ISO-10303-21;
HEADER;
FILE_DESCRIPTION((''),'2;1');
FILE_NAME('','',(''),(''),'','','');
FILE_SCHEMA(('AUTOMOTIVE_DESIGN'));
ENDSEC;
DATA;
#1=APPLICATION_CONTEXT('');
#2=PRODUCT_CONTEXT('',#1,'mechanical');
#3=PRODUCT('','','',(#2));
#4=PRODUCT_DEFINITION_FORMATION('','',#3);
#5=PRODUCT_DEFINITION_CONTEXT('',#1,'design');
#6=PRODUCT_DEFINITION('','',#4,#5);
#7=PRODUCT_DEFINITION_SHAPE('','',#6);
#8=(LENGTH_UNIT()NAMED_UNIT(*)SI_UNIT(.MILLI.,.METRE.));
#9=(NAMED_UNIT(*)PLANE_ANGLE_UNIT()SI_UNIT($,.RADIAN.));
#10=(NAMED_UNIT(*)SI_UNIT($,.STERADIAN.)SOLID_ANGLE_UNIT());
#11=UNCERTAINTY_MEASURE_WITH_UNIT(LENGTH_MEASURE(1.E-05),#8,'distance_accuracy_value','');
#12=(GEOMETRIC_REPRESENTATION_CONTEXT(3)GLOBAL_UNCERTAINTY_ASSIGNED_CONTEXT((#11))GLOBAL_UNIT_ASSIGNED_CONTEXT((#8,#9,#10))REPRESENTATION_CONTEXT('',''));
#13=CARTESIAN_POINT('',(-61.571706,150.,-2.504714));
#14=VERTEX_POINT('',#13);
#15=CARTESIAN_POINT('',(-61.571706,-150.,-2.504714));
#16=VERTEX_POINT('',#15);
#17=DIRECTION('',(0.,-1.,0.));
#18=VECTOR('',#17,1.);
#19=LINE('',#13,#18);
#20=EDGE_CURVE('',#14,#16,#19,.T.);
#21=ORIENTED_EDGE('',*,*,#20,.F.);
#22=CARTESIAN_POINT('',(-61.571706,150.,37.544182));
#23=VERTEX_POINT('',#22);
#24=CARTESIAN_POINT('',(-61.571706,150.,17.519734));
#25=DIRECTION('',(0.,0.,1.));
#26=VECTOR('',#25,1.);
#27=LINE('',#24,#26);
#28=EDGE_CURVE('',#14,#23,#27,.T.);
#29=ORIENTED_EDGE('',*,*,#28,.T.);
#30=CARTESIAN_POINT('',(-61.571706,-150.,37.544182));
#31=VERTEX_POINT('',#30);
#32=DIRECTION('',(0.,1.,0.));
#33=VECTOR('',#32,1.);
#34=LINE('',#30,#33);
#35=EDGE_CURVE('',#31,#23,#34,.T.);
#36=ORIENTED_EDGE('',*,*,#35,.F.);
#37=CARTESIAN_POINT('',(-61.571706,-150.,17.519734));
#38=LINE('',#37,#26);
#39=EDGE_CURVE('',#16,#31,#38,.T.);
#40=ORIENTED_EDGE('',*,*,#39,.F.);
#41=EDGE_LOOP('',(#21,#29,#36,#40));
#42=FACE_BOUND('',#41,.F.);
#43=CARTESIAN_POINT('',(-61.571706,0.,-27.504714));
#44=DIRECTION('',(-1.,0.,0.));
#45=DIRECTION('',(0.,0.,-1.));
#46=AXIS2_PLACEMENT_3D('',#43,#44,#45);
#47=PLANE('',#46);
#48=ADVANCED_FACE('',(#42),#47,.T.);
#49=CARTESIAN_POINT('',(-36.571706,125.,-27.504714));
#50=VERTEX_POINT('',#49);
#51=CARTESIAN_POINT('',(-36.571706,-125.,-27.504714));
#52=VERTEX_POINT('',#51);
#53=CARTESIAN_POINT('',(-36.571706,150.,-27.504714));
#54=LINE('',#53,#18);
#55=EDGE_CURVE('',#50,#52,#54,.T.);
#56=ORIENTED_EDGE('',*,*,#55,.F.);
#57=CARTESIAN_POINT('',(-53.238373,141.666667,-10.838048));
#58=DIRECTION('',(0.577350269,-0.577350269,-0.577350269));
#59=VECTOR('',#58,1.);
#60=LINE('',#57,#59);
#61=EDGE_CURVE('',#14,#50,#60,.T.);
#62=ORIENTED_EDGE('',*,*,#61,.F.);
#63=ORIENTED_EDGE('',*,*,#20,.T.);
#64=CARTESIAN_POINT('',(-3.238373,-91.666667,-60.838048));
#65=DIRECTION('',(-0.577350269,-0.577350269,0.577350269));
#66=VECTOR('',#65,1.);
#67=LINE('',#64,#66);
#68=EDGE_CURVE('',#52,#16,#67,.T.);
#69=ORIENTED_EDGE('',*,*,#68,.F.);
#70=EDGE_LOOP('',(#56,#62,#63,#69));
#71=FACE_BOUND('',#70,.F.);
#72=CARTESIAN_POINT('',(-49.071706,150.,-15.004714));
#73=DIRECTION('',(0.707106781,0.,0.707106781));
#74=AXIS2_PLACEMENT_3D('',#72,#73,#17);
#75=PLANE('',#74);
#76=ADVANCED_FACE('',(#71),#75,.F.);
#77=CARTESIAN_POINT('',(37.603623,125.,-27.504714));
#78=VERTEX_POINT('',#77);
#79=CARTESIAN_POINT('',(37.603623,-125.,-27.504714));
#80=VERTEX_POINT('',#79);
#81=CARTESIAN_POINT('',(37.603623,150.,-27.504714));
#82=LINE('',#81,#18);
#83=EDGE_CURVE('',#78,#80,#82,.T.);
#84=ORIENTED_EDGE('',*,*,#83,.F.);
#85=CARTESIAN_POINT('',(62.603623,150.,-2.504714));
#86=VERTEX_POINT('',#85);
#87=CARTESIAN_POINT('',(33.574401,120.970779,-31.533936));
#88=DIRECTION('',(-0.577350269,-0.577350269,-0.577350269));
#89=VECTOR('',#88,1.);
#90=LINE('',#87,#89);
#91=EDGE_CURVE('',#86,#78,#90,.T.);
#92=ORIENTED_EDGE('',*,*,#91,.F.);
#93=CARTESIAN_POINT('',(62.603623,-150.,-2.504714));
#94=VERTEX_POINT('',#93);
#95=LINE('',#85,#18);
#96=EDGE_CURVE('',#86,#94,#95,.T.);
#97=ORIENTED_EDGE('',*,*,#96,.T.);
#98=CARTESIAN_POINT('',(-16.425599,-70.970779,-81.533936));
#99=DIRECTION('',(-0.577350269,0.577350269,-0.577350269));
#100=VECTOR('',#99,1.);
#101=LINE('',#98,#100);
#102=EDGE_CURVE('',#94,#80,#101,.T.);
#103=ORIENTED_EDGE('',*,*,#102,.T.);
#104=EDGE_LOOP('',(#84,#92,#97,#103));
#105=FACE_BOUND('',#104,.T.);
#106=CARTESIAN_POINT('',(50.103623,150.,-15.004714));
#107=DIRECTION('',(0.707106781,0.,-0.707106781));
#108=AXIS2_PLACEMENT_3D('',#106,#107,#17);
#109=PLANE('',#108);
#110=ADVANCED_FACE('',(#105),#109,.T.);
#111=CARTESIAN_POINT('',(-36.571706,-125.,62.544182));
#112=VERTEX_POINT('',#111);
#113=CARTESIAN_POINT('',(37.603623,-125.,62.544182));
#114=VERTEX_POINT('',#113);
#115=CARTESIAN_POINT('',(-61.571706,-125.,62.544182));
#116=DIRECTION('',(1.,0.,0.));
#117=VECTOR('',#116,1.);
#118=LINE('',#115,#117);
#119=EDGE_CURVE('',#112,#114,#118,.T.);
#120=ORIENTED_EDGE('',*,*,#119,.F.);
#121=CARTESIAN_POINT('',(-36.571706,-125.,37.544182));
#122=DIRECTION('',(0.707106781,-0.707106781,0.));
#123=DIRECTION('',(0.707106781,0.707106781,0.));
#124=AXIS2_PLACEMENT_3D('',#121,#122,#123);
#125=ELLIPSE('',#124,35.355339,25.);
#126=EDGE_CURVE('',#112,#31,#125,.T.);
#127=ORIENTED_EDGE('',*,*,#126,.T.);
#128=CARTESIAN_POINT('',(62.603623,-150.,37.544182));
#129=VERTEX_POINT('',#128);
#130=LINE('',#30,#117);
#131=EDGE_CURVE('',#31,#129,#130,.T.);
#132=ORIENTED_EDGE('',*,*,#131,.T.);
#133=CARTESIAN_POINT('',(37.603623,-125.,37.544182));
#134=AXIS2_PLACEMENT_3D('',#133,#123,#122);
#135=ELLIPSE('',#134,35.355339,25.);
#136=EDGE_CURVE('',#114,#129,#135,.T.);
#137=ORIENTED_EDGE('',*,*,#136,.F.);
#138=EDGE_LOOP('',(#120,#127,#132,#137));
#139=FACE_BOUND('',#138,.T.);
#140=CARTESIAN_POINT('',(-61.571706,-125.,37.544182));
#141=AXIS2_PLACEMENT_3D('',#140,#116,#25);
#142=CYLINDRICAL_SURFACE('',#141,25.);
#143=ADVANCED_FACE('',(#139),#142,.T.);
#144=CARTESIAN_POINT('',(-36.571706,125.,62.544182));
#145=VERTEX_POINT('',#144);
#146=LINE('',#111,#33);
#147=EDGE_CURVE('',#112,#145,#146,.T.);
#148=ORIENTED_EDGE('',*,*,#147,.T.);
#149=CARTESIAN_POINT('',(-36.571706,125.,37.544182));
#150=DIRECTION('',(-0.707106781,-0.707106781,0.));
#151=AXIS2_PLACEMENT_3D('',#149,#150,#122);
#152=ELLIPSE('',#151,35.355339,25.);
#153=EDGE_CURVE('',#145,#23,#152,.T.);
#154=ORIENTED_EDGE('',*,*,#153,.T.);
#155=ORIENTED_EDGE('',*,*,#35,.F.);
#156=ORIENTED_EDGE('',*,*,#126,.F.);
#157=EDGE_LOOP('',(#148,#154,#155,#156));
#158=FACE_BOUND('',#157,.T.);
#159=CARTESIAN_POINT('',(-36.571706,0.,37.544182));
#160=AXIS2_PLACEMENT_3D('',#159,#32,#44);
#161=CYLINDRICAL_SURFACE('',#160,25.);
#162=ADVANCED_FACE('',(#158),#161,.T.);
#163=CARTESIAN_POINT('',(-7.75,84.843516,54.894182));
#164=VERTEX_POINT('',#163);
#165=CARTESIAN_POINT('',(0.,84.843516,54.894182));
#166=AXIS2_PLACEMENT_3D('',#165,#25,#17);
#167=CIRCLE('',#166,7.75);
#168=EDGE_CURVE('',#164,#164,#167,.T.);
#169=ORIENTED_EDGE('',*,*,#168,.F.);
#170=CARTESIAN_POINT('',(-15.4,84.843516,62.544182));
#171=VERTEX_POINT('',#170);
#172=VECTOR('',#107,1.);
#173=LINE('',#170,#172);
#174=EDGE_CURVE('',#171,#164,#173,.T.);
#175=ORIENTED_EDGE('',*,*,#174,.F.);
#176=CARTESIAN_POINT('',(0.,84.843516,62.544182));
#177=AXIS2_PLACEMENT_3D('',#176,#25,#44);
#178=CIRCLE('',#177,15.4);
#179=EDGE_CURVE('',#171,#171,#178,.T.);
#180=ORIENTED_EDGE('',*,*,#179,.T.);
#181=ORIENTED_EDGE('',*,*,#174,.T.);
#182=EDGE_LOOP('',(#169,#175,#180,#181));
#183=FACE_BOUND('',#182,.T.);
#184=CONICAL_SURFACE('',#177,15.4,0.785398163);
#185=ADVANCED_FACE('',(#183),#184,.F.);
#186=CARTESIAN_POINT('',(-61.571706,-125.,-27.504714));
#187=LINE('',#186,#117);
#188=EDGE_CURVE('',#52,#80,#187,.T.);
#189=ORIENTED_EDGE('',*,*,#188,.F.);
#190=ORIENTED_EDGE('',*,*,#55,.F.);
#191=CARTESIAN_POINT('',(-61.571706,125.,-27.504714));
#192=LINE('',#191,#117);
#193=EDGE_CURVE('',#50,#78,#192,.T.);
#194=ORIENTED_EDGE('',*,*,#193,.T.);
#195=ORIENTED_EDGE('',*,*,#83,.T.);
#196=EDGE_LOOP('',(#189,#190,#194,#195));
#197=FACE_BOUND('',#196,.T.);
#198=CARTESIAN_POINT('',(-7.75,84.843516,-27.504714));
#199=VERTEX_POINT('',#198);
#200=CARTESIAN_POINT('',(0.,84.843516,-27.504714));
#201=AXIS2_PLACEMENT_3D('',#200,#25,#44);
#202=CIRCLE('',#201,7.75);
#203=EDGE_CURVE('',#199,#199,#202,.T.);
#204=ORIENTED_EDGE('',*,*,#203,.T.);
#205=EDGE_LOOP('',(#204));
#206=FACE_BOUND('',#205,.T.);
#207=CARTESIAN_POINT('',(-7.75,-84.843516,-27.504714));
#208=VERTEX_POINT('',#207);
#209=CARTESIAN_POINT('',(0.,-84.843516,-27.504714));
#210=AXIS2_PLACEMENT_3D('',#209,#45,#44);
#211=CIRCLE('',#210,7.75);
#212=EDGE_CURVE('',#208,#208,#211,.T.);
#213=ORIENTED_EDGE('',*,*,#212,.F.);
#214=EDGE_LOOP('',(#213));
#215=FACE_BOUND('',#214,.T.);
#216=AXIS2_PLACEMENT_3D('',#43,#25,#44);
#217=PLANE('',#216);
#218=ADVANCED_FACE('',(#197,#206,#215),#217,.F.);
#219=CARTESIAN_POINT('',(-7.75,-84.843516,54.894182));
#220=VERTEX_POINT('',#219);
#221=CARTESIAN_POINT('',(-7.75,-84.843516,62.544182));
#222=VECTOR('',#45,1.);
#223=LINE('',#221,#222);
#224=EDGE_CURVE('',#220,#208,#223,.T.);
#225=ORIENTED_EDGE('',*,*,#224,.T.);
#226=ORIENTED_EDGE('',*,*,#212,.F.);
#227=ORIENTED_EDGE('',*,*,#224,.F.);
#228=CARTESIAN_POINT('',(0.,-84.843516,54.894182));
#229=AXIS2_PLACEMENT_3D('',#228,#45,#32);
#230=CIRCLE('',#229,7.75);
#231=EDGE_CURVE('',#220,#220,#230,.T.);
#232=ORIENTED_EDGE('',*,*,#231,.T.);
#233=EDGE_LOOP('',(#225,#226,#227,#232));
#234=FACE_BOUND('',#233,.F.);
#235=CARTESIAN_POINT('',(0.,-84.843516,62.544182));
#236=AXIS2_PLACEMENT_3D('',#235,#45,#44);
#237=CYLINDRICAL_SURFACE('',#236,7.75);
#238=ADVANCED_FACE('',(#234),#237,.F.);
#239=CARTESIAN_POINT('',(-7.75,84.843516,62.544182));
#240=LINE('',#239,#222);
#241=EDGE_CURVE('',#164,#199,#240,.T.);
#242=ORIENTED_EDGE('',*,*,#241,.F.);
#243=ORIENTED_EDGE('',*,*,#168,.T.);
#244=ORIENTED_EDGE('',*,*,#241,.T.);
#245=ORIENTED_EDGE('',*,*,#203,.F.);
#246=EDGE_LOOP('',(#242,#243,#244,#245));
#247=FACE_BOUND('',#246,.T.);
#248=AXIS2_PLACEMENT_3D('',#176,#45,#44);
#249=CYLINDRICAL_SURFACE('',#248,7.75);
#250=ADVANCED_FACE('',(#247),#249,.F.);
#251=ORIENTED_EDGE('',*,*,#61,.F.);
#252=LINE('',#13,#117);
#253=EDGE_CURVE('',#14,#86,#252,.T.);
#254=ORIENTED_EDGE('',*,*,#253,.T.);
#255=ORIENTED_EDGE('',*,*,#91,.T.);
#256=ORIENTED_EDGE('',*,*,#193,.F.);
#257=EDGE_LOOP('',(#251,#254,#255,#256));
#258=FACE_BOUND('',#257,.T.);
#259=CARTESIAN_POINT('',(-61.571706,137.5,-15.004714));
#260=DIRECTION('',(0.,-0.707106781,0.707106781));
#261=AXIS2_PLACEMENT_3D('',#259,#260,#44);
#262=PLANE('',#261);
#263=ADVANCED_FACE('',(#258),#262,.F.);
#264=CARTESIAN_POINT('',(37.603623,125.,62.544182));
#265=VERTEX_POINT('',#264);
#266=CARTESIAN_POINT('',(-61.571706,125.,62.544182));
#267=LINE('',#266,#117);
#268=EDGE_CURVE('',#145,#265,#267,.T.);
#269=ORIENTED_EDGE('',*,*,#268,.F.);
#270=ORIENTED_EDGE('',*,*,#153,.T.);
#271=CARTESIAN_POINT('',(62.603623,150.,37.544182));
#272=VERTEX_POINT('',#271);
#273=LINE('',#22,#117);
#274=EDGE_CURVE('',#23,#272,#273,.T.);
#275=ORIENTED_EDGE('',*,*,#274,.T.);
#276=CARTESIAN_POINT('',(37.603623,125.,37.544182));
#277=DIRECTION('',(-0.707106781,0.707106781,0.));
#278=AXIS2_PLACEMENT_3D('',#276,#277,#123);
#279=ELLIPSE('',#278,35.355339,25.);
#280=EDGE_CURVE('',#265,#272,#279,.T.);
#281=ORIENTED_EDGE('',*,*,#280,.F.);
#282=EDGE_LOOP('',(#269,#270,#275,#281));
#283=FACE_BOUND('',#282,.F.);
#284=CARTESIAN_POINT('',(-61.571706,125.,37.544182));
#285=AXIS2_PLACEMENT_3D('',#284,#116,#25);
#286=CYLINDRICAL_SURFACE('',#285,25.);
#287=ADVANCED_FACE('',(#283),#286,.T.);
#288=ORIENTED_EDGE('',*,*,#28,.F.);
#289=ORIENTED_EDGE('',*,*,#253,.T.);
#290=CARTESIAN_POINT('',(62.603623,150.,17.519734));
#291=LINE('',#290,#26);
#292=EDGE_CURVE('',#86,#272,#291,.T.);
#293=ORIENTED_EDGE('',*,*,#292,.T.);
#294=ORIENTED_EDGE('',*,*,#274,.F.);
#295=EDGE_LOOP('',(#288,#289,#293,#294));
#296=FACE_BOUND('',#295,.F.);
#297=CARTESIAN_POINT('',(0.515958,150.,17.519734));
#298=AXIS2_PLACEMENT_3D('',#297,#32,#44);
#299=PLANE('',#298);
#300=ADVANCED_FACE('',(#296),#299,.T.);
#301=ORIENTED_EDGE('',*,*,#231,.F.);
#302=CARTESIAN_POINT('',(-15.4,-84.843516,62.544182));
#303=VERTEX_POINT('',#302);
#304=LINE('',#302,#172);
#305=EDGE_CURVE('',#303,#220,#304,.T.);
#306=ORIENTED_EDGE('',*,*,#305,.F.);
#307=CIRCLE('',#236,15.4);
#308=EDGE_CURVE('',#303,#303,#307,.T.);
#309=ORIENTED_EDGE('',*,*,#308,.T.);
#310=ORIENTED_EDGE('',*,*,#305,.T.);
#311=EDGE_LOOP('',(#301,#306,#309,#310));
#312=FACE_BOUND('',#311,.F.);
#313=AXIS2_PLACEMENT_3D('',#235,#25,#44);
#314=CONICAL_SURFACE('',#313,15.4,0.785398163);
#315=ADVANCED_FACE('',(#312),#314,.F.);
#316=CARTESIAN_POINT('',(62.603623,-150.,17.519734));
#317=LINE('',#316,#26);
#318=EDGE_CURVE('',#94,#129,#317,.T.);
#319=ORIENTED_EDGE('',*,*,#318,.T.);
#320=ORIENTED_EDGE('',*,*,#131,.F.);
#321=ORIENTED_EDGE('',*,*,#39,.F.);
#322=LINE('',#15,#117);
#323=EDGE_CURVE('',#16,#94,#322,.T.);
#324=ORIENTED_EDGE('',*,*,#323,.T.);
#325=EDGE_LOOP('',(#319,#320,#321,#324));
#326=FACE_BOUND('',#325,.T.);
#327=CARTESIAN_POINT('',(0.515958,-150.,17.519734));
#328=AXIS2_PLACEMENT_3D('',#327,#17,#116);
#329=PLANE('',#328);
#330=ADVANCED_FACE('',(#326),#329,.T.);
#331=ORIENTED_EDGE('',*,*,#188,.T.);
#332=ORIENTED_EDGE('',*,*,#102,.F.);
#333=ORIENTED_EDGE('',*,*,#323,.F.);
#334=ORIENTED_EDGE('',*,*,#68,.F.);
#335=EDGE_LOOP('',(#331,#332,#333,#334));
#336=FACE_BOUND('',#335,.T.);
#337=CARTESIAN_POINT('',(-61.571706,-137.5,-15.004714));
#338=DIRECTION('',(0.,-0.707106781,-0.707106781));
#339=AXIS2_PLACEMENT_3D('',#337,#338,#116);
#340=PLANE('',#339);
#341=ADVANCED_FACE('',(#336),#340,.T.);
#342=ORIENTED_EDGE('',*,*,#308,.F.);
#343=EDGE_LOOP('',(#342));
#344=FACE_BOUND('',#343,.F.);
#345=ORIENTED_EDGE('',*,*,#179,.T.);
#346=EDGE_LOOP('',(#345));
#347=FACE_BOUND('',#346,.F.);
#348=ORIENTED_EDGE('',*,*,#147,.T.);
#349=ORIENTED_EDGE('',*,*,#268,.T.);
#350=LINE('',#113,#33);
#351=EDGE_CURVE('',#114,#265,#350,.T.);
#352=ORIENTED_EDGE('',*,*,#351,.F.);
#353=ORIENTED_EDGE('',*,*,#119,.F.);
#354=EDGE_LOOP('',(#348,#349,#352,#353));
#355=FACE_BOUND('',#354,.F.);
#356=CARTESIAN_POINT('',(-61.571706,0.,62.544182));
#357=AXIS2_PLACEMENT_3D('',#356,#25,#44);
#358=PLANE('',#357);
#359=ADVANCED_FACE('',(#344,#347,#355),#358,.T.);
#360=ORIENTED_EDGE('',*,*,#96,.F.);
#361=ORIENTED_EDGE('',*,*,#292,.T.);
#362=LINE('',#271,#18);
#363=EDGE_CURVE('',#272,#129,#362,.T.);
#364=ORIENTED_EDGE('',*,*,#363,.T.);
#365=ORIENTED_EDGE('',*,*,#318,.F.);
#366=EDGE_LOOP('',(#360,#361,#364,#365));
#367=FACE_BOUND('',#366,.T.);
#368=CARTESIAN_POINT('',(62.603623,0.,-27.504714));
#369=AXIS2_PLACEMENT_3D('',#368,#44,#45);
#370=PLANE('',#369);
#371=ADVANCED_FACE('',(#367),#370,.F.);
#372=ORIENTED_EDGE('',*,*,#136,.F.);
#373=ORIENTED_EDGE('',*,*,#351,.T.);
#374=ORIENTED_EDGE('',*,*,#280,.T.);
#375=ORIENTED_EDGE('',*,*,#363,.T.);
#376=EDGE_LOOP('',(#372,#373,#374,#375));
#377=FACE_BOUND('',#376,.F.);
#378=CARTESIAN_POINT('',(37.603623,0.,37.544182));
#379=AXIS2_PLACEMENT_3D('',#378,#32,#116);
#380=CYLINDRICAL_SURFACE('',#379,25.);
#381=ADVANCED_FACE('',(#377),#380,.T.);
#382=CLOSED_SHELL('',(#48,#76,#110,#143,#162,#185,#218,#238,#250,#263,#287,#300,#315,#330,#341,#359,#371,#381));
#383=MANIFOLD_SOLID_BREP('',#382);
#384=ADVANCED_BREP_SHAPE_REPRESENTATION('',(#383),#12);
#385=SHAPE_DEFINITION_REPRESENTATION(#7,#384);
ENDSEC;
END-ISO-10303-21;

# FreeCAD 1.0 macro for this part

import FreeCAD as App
import Part
import Sketcher
from FreeCAD import Vector
Q = App.Units.Quantity


def edges_at(feature, points):
    """Names of the edges that pass closest to the given points."""
    edges = feature.Shape.Edges
    near = lambda p: min(range(len(edges)), key=lambda i: edges[i].distToShape(Part.Vertex(*p))[0])
    return sorted({f"Edge{near(p) + 1}" for p in points})


def add_polygon(sketch, points):
    """Adds a closed chain of lines whose ends are joined by coincident constraints."""
    first, n = sketch.GeometryCount, len(points)
    for a, b in zip(points, points[1:] + points[:1]):
        sketch.addGeometry(Part.LineSegment(App.Vector(*a, 0), App.Vector(*b, 0)), False)
    for i in range(n):
        sketch.addConstraint(Sketcher.Constraint("Coincident", first + i, 2, first + (i + 1) % n, 1))

doc = App.newDocument("Part")
body = doc.addObject("PartDesign::Body", "Body")

# Sketch on XZ plane
sketch1 = body.newObject("Sketcher::SketchObject", "Sketch")
sketch1.AttachmentSupport = (doc.getObject("XZ_Plane"), [""])
sketch1.MapMode = "FlatFace"
add_polygon(sketch1, [(-62, 63), (-62, -28), (63, -28), (63, 63)])  # lines 0-3
sketch1.addConstraint([
    Sketcher.Constraint("Vertical", 0),
    Sketcher.Constraint("Horizontal", 1),
    Sketcher.Constraint("Vertical", 2),
    Sketcher.Constraint("Horizontal", 3),
    Sketcher.Constraint("DistanceX", 1, 1, 1, 2, Q("124.175329 mm")),
    Sketcher.Constraint("DistanceY", 0, 2, 0, 1, Q("90.048896 mm")),
    Sketcher.Constraint("DistanceY", -1, 1, 2, 2, Q("62.544182 mm")),
    Sketcher.Constraint("DistanceX", 0, 2, -1, 1, Q("61.571706 mm")),
])
pad1 = body.newObject("PartDesign::Pad", "Pad")
pad1.Profile = sketch1
pad1.Length = 150
doc.recompute()

fillet = body.newObject("PartDesign::Fillet", "Fillet")
fillet.Base = (pad1, edges_at(pad1, [(0.516, -150, 62.544), (62.604, -75, 62.544), (-61.572, -75, 62.544)]))
fillet.Radius = 25

# Sketch on XY plane
sketch2 = body.newObject("Sketcher::SketchObject", "Sketch001")
sketch2.AttachmentSupport = (doc.getObject("XY_Plane"), [""])
sketch2.MapMode = "FlatFace"
sketch2.AttachmentOffset = App.Placement(Vector(0, 0, 62.544182), App.Rotation())
sketch2.addGeometry(Part.Circle(Vector(0, -85, 0), Vector(0, 0, 1), 8), False)
sketch2.addConstraint([
    Sketcher.Constraint("PointOnObject", 0, 3, -2),
    Sketcher.Constraint("Diameter", 0, Q("15.5 mm")),
    Sketcher.Constraint("DistanceY", 0, 3, -1, 1, Q("84.843516 mm")),
])
doc.recompute()
hole = body.newObject("PartDesign::Hole", "Hole")
hole.Profile = sketch2
hole.ThreadType = "None"
hole.Diameter = 15.5
hole.DepthType = "ThroughAll"
hole.HoleCutType = "Countersink"
hole.HoleCutDiameter = 30.8
hole.HoleCutCountersinkAngle = 90
body2 = doc.addObject("PartDesign::Body", "Body001")
doc.recompute()

body2.BaseFeature = body
doc.recompute()

mirroring = doc.addObject("Part::Mirroring", "Mirroring")
mirroring.Source = body
mirroring.Base = Vector(0, 0, 0)
mirroring.Normal = Vector(0, -1, 0)
body3 = doc.addObject("PartDesign::Body", "Body002")
body3.BaseFeature = mirroring
boolean = body2.newObject("PartDesign::Boolean", "Boolean")
boolean.Type = "Fuse"
boolean.addObjects([body3])
doc.recompute()

chamfer = body2.newObject("PartDesign::Chamfer", "Chamfer")
chamfer.Base = (boolean, edges_at(boolean, [
    (62.604, 0, -27.505),
    (0.516, 150, -27.505),
    (0.516, -150, -27.505),
    (-61.572, 0, -27.505),
]))
chamfer.Size = 25
mirroring.Visibility = False

doc.recompute()
